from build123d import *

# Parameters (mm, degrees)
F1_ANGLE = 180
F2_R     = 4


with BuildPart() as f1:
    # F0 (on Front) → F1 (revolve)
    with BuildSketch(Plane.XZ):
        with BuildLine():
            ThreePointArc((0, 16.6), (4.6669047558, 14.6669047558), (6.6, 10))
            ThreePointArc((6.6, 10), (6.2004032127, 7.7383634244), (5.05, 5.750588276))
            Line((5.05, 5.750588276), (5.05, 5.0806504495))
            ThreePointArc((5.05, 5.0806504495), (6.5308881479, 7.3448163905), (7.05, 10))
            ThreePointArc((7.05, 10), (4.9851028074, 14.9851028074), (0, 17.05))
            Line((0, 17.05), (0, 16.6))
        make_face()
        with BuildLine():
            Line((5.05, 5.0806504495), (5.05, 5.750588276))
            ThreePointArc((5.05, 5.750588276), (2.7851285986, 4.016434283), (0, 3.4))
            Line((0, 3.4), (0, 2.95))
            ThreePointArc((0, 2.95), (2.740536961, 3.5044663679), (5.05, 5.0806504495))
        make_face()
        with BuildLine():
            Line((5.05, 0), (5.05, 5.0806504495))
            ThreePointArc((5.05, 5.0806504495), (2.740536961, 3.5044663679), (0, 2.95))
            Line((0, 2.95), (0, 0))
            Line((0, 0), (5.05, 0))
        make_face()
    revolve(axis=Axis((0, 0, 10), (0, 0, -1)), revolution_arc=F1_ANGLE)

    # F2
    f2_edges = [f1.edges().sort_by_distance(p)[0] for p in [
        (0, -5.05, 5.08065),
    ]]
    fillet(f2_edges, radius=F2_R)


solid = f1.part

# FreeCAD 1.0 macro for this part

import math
import FreeCAD as App
import Part
import Sketcher
from FreeCAD import Vector
Q = App.Units.Quantity


def edges_at(feature, points):
    """Names of the edges that pass closest to the given points."""
    edges = feature.Shape.Edges
    near = lambda p: min(range(len(edges)), key=lambda i: edges[i].distToShape(Part.Vertex(*p))[0])
    return sorted({f"Edge{near(p) + 1}" for p in points})

doc = App.newDocument("Part")
params = doc.addObject("Spreadsheet::Sheet", "Params")
for row, (alias, value) in enumerate([
    ("sketch1_radius", "6.6 mm"),
    ("sketch1_radius2", "7.05 mm"),
    ("sketch1_height", "3.4 mm"),
    ("revolution_angle", "180 deg"),
    ("fillet_radius", "4 mm"),
], start=1):
    params.set(f"A{row}", alias)
    params.set(f"B{row}", "=" + value)
    params.setAlias(f"B{row}", alias)

body = doc.addObject("PartDesign::Body", "Body")

# Sketch on XZ plane
sketch1 = body.newObject("Sketcher::SketchObject", "Sketch")
sketch1.AttachmentSupport = (doc.getObject("XZ_Plane"), [""])
sketch1.MapMode = "FlatFace"
sketch1.addGeometry([
    Part.ArcOfCircle(Part.Circle(Vector(0, 10, 0), Vector(0, 0, 1), 6.6), math.radians(0), math.radians(90)),  # 0
    Part.ArcOfCircle(Part.Circle(Vector(0, 10, 0), Vector(0, 0, 1), 6.6), math.radians(-40), math.radians(0)),  # 1
    Part.ArcOfCircle(Part.Circle(Vector(0, 10, 0), Vector(0, 0, 1), 6.6), math.radians(-90), math.radians(-40)),  # 2
    Part.LineSegment(Vector(0, 3.4, 0), Vector(0, 0, 0)),  # 3
    Part.LineSegment(Vector(0, 0, 0), Vector(5.05, 0, 0)),  # 4
    Part.LineSegment(Vector(5.05, 0, 0), Vector(5.05, 5.08, 0)),  # 5
    Part.ArcOfCircle(Part.Circle(Vector(0, 10, 0), Vector(0, 0, 1), 7.05), math.radians(-44), math.radians(0)),  # 6
    Part.ArcOfCircle(Part.Circle(Vector(0, 10, 0), Vector(0, 0, 1), 7.05), math.radians(0), math.radians(90)),  # 7
    Part.LineSegment(Vector(0, 17.05, 0), Vector(0, 16.6, 0)),  # 8
], False)
sketch1.addConstraint([
    Sketcher.Constraint("Tangent", 0, 1, 1, 2),
    Sketcher.Constraint("Tangent", 1, 1, 2, 2),
    Sketcher.Constraint("Coincident", 2, 1, 3, 1),
    Sketcher.Constraint("Coincident", 3, 2, 4, 1),
    Sketcher.Constraint("Coincident", 4, 2, 5, 1),
    Sketcher.Constraint("Coincident", 5, 2, 6, 1),
    Sketcher.Constraint("Tangent", 6, 2, 7, 1),
    Sketcher.Constraint("Coincident", 7, 2, 8, 1),
    Sketcher.Constraint("Coincident", 8, 2, 0, 2),
    Sketcher.Constraint("Vertical", 3),
    Sketcher.Constraint("Horizontal", 4),
    Sketcher.Constraint("Vertical", 5),
    Sketcher.Constraint("Vertical", 8),
    Sketcher.Constraint("Coincident", 3, 2, -1, 1),
    Sketcher.Constraint("Coincident", 2, 3, 0, 3),
    Sketcher.Constraint("Coincident", 6, 3, 0, 3),
    Sketcher.Constraint("Equal", 6, 7),
    Sketcher.Constraint("PointOnObject", 0, 3, -2),
    Sketcher.Constraint("PointOnObject", 7, 2, -2),
    Sketcher.Constraint("Horizontal", 7, 3, 0, 1),
    Sketcher.Constraint("Horizontal", 0, 1, 6, 2),
    Sketcher.Constraint("Vertical", 1, 1, 4, 2),
    Sketcher.Constraint("Radius", 0, Q("6.6 mm")),
    Sketcher.Constraint("Radius", 6, Q("7.05 mm")),
    Sketcher.Constraint("DistanceY", 3, 2, 3, 1, Q("3.4 mm")),
    Sketcher.Constraint("DistanceX", 1, 1, 6, 2, Q("2 mm")),
])
sketch1.setExpression("Constraints[22]", "Params.sketch1_radius")
sketch1.setExpression("Constraints[23]", "Params.sketch1_radius2")
sketch1.setExpression("Constraints[24]", "Params.sketch1_height")
revolution = body.newObject("PartDesign::Revolution", "Revolution")
revolution.Profile = sketch1
revolution.ReferenceAxis = (sketch1, ["V_Axis"])
revolution.setExpression("Angle", "Params.revolution_angle")
revolution.Reversed = True
doc.recompute()

fillet = body.newObject("PartDesign::Fillet", "Fillet")
fillet.Base = (revolution, edges_at(revolution, [(0, -5.05, 5.081)]))
fillet.setExpression("Radius", "Params.fillet_radius")

doc.recompute()
